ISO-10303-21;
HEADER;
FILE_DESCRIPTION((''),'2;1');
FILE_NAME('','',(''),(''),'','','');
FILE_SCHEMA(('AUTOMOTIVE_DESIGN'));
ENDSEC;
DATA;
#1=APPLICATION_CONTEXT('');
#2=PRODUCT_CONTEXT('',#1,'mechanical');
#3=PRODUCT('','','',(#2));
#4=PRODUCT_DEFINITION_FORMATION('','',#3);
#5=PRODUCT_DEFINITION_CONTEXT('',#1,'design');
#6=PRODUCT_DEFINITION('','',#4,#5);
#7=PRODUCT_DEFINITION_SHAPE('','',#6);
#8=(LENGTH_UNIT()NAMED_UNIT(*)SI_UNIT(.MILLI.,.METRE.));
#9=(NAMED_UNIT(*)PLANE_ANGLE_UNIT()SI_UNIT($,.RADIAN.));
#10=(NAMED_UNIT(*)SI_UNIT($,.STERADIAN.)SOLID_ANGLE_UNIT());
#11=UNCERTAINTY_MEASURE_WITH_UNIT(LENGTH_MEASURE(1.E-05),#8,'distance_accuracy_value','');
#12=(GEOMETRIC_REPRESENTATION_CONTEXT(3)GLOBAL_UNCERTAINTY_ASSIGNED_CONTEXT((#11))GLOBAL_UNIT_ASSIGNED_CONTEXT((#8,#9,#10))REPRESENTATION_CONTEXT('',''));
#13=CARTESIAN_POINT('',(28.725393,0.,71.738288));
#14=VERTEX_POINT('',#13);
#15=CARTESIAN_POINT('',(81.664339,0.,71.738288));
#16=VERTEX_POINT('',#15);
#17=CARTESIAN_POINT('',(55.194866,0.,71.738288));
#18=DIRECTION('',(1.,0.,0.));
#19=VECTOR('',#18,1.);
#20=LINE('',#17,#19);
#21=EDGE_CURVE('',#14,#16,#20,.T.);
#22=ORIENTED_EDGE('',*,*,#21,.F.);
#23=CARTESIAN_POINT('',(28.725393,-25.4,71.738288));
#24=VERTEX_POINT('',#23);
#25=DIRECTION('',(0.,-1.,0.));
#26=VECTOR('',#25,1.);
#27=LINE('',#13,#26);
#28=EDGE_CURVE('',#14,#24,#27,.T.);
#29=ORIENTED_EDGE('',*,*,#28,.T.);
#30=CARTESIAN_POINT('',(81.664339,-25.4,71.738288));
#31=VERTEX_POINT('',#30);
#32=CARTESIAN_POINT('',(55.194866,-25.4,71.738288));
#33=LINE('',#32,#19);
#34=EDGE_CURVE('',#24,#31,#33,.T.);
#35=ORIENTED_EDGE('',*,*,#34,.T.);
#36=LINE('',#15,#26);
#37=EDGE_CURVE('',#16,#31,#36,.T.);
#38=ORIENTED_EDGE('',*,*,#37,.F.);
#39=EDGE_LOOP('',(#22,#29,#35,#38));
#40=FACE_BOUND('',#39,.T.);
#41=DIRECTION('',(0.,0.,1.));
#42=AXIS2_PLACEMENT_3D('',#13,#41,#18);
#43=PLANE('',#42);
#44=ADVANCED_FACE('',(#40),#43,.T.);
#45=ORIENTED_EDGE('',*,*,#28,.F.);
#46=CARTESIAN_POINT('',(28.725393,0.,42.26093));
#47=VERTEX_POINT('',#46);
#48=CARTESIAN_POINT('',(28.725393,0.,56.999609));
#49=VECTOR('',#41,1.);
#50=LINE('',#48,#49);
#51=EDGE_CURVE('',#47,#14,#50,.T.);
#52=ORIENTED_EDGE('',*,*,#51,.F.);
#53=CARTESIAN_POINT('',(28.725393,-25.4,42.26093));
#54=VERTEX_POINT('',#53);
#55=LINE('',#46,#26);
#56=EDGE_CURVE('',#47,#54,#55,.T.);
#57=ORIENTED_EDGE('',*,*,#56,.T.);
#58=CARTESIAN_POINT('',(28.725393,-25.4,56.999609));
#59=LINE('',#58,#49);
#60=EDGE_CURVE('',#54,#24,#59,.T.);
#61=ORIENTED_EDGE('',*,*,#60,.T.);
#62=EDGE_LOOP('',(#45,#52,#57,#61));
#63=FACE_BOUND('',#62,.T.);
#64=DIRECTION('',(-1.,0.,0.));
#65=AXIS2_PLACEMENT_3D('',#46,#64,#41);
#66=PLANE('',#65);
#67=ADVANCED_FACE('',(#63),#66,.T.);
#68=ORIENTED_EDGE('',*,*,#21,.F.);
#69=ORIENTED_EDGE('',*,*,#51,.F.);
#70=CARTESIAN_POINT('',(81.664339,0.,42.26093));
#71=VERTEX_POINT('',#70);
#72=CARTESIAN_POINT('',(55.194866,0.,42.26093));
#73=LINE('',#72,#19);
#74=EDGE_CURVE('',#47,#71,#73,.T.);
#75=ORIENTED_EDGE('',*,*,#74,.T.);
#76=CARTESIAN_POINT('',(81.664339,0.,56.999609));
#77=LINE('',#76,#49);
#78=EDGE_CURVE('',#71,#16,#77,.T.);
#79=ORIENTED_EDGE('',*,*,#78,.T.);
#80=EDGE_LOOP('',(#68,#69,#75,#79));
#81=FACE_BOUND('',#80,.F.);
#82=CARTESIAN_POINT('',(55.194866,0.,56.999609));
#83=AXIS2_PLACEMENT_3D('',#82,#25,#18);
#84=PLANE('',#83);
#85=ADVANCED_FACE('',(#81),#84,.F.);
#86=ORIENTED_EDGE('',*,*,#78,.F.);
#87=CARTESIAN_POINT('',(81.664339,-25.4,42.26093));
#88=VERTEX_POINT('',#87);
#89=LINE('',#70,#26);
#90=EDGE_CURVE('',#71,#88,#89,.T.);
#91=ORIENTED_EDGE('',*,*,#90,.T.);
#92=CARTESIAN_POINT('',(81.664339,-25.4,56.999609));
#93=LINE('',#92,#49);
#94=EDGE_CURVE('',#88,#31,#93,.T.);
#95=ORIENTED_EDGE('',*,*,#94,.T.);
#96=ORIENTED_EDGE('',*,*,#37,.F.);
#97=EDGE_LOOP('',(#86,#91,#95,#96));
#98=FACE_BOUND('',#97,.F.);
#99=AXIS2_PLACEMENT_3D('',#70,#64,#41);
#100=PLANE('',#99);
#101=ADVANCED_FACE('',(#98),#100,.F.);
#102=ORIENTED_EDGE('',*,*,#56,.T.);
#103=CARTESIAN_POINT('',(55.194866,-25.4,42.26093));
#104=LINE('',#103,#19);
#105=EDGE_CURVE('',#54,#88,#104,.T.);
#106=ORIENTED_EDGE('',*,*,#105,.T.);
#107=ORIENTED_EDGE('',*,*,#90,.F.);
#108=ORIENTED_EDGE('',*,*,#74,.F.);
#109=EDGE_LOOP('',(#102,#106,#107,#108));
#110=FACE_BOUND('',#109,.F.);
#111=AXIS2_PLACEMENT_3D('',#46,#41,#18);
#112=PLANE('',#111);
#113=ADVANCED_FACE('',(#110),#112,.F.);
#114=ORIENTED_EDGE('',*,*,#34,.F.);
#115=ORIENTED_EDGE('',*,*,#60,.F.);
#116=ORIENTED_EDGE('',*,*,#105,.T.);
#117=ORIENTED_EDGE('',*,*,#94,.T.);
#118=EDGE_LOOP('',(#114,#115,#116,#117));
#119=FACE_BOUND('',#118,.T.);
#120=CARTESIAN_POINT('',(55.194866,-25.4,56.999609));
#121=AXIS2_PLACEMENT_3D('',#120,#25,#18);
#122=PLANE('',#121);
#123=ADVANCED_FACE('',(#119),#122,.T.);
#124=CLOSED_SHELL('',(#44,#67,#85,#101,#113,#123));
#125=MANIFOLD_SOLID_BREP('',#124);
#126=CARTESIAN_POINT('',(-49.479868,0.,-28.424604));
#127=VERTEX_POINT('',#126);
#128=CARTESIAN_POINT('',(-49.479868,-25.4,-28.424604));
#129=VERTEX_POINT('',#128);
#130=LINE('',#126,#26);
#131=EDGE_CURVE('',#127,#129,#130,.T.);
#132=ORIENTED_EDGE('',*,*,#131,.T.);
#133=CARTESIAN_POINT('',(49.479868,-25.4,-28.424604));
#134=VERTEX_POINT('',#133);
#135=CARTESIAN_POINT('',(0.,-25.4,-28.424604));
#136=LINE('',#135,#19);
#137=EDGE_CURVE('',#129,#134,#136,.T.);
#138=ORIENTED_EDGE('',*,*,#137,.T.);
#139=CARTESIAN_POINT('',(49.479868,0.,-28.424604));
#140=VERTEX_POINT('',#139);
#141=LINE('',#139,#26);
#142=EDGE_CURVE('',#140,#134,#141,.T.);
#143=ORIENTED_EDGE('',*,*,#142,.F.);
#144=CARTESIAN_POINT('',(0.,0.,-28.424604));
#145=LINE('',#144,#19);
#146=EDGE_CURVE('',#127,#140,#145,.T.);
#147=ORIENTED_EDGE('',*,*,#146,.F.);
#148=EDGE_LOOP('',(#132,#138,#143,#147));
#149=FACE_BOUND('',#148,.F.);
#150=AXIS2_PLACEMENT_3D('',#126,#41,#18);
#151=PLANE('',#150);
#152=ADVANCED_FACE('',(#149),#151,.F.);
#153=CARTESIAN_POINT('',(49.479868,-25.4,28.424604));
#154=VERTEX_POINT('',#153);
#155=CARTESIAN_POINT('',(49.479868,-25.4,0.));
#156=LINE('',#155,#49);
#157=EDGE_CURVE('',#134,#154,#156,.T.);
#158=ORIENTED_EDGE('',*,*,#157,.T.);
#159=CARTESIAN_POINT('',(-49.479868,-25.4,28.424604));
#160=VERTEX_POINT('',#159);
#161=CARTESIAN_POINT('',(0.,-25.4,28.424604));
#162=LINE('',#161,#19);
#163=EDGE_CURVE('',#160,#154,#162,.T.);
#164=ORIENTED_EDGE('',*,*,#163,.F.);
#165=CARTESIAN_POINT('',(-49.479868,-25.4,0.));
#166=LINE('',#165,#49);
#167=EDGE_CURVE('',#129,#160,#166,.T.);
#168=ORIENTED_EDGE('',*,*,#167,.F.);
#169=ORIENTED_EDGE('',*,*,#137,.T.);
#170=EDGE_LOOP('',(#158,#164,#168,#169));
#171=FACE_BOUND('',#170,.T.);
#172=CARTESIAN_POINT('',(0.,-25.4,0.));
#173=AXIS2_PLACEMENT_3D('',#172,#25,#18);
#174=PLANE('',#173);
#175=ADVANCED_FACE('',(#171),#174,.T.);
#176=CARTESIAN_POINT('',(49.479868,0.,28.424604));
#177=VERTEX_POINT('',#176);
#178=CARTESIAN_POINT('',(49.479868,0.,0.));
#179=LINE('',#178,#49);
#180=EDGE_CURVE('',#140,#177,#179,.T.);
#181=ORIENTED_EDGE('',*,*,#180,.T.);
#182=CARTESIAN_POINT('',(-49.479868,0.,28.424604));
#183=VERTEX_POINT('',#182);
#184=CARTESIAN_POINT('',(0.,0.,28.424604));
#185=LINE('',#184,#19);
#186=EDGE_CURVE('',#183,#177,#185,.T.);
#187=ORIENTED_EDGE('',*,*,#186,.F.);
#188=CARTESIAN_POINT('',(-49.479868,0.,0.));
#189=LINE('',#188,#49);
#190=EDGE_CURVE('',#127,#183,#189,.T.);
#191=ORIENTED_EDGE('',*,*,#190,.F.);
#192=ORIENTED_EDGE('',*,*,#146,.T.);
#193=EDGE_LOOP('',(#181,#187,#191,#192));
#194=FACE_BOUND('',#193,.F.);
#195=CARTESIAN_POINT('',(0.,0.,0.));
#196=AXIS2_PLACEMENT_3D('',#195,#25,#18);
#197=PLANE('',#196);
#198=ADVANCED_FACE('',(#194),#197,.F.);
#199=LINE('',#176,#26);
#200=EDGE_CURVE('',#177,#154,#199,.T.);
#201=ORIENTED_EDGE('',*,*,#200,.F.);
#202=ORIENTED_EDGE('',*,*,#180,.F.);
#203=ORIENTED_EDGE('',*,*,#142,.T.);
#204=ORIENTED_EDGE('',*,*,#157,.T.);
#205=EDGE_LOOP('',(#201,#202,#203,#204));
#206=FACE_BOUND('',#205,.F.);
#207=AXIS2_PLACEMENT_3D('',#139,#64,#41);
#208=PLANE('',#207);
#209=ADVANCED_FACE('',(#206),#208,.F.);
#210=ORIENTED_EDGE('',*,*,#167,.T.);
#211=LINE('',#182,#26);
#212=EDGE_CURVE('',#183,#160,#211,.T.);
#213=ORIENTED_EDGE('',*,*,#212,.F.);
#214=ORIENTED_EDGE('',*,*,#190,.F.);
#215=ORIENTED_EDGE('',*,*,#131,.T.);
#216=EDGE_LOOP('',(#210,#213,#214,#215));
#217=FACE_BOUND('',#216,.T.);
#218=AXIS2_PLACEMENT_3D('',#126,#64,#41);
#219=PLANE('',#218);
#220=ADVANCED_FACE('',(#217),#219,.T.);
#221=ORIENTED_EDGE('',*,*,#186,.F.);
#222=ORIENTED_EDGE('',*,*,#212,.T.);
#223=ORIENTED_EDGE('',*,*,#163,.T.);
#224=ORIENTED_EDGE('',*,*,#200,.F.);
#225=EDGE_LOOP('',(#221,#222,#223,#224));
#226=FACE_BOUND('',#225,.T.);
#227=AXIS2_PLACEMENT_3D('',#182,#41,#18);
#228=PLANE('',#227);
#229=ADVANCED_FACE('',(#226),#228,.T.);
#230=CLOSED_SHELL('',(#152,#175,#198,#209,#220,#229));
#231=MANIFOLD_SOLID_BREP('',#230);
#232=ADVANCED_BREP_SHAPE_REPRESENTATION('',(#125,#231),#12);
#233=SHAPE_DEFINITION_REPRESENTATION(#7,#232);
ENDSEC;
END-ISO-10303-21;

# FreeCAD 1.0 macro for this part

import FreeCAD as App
import Part
import Sketcher
from FreeCAD import Vector
Q = App.Units.Quantity

doc = App.newDocument("Part")
body = doc.addObject("PartDesign::Body", "Body")
body.AllowCompound = True

sketch1 = body.newObject("Sketcher::SketchObject", "Sketch")
sketch1.AttachmentSupport = (doc.getObject("XZ_Plane"), [""])
sketch1.MapMode = "FlatFace"
sketch1.addGeometry([
    Part.LineSegment(Vector(-49, 28, 0), Vector(-49, -28, 0)),
    Part.LineSegment(Vector(-49, -28, 0), Vector(49, -28, 0)),
    Part.LineSegment(Vector(49, -28, 0), Vector(49, 28, 0)),
    Part.LineSegment(Vector(49, 28, 0), Vector(-49, 28, 0)),
    Part.LineSegment(Vector(29, 72, 0), Vector(29, 42, 0)),
    Part.LineSegment(Vector(29, 42, 0), Vector(82, 42, 0)),
    Part.LineSegment(Vector(82, 42, 0), Vector(82, 72, 0)),
    Part.LineSegment(Vector(82, 72, 0), Vector(29, 72, 0)),
], False)
sketch1.addConstraint([
    Sketcher.Constraint("Coincident", 0, 2, 1, 1),
    Sketcher.Constraint("Coincident", 1, 2, 2, 1),
    Sketcher.Constraint("Coincident", 2, 2, 3, 1),
    Sketcher.Constraint("Coincident", 3, 2, 0, 1),
    Sketcher.Constraint("Coincident", 4, 2, 5, 1),
    Sketcher.Constraint("Coincident", 5, 2, 6, 1),
    Sketcher.Constraint("Coincident", 6, 2, 7, 1),
    Sketcher.Constraint("Coincident", 7, 2, 4, 1),
    Sketcher.Constraint("Vertical", 0),
    Sketcher.Constraint("Horizontal", 1),
    Sketcher.Constraint("Vertical", 2),
    Sketcher.Constraint("Horizontal", 3),
    Sketcher.Constraint("Vertical", 4),
    Sketcher.Constraint("Horizontal", 5),
    Sketcher.Constraint("Vertical", 6),
    Sketcher.Constraint("Horizontal", 7),
    Sketcher.Constraint("Symmetric", 0, 2, 2, 2, -1, 1),
    Sketcher.Constraint("DistanceX", 1, 1, 1, 2, Q("98.959736 mm")),
    Sketcher.Constraint("DistanceX", 5, 1, 5, 2, Q("52.938946 mm")),
    Sketcher.Constraint("DistanceY", 0, 2, 0, 1, Q("56.849208 mm")),
    Sketcher.Constraint("DistanceY", 4, 2, 4, 1, Q("29.477358 mm")),
    Sketcher.Constraint("DistanceY", -1, 1, 4, 2, Q("42.26093 mm")),
    Sketcher.Constraint("DistanceX", -1, 1, 5, 2, Q("81.664339 mm")),
])
pad1 = body.newObject("PartDesign::Pad", "Pad")
pad1.Profile = sketch1
pad1.Length = Q("1 in")

doc.recompute()
